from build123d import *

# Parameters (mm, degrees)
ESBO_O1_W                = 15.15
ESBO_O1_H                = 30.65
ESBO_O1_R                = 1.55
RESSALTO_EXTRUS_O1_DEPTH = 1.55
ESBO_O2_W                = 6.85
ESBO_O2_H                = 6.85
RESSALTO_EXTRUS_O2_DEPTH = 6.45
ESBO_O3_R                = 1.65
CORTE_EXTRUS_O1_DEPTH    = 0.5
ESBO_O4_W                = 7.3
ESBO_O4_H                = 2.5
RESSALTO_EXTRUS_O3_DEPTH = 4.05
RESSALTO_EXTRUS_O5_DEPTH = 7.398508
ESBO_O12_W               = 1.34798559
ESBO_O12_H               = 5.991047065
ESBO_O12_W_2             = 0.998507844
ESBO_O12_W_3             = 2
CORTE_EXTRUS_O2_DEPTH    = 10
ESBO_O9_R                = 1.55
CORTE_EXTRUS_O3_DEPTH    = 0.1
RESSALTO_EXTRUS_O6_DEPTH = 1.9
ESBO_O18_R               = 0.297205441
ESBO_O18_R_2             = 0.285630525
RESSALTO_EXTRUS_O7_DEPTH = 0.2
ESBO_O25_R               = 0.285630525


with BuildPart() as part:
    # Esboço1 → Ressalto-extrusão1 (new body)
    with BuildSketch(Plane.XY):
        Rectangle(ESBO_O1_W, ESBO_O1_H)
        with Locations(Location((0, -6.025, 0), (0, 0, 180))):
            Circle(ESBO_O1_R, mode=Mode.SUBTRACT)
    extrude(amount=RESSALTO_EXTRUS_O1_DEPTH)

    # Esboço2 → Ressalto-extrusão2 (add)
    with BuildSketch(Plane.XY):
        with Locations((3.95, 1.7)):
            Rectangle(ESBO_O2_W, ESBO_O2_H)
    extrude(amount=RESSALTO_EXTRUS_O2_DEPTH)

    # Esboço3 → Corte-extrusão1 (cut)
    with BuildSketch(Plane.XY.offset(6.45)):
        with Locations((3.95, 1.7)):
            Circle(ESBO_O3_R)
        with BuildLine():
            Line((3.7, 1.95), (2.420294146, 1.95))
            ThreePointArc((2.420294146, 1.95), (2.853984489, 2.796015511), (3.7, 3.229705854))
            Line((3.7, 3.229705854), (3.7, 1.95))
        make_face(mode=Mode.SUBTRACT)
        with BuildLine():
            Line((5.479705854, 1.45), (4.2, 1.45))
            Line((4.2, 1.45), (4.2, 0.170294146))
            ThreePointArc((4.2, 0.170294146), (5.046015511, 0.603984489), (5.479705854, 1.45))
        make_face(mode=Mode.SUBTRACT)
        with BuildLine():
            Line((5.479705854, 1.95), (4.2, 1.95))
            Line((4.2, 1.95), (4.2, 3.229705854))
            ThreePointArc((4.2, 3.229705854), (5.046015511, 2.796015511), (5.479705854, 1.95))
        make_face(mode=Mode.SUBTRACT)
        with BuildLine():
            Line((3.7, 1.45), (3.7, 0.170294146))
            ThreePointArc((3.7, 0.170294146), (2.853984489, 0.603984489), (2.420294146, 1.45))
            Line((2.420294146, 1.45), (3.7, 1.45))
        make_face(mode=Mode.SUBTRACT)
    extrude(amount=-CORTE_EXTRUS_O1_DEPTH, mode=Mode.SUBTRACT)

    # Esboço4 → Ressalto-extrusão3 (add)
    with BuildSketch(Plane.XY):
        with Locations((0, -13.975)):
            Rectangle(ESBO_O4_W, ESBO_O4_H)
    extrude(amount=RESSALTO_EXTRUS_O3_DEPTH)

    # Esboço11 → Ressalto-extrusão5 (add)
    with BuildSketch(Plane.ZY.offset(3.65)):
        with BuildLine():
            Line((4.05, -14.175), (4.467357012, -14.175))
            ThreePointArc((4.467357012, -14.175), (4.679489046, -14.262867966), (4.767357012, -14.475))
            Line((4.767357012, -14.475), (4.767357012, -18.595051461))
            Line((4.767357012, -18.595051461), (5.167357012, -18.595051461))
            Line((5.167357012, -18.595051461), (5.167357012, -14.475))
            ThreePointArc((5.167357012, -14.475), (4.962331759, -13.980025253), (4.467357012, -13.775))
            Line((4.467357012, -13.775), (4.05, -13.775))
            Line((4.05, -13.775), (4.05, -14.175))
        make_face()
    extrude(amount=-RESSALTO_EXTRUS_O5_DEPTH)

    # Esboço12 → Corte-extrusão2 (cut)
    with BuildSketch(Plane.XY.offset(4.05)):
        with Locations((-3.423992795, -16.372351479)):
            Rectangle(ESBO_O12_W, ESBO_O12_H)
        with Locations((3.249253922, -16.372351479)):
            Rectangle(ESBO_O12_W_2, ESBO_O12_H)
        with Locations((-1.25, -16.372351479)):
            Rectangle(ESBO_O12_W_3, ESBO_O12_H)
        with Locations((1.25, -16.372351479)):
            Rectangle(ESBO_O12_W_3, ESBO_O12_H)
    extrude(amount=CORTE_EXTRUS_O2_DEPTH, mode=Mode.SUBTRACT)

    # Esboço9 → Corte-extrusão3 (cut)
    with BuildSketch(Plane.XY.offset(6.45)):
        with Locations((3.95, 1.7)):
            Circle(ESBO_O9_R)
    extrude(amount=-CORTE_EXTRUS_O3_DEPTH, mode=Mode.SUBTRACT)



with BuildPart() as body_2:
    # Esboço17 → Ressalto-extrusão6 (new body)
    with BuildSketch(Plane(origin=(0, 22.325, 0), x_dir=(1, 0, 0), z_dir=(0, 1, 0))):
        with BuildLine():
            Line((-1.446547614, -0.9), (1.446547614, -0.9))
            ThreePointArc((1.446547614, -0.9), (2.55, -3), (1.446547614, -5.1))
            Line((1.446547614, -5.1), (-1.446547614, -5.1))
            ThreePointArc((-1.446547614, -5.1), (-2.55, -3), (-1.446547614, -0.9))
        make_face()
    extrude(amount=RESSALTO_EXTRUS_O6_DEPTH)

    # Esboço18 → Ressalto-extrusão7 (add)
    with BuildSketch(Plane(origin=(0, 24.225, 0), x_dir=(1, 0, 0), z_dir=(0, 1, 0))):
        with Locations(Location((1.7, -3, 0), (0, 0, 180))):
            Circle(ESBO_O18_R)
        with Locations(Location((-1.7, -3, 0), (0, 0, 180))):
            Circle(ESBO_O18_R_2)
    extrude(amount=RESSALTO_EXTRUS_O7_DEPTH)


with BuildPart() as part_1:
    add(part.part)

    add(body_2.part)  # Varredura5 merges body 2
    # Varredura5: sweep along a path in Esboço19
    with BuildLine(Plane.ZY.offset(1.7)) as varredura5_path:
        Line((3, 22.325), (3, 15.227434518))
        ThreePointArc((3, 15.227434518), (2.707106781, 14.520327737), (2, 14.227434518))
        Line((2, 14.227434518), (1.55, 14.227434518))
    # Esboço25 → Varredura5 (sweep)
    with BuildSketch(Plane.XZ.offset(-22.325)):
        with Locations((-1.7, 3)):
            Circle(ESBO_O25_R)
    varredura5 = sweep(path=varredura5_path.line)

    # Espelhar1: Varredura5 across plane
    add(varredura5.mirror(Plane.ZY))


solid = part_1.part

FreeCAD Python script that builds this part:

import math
import FreeCAD as App
import Part
import Sketcher
from FreeCAD import Vector


def add_polygon(sketch, points):
    """Adds a closed chain of lines whose ends are joined by coincident constraints."""
    first, n = sketch.GeometryCount, len(points)
    for a, b in zip(points, points[1:] + points[:1]):
        sketch.addGeometry(Part.LineSegment(App.Vector(*a, 0), App.Vector(*b, 0)), False)
    for i in range(n):
        sketch.addConstraint(Sketcher.Constraint("Coincident", first + i, 2, first + (i + 1) % n, 1))

doc = App.newDocument("Part")
body = doc.addObject("PartDesign::Body", "Body")

sketch1 = body.newObject("Sketcher::SketchObject", "Sketch")
sketch1.AttachmentSupport = (doc.getObject("XY_Plane"), [""])
sketch1.MapMode = "FlatFace"
add_polygon(sketch1, [(-7.6, 15.3), (-7.6, -15.3), (7.6, -15.3), (7.6, 15.3)])
sketch1.addGeometry(Part.Circle(Vector(0, -6, 0), Vector(0, 0, 1), 1.6), False)
sketch1.addConstraint([
    Sketcher.Constraint("Vertical", 0),
    Sketcher.Constraint("Horizontal", 1),
    Sketcher.Constraint("Vertical", 2),
    Sketcher.Constraint("Horizontal", 3),
    Sketcher.Constraint("Symmetric", 0, 2, 2, 2, -1, 1),
    Sketcher.Constraint("PointOnObject", 4, 3, -2),
    Sketcher.Constraint("Diameter", 4, 3.1),
    Sketcher.Constraint("DistanceX", 1, 1, 1, 2, 15.15),
    Sketcher.Constraint("DistanceY", 0, 2, 0, 1, 30.65),
    Sketcher.Constraint("DistanceY", 0, 2, 4, 3, 9.3),
])
pad1 = body.newObject("PartDesign::Pad", "Pad")
pad1.Profile = sketch1
pad1.Length = 1.55

sketch2 = body.newObject("Sketcher::SketchObject", "Sketch001")
sketch2.AttachmentSupport = (doc.getObject("XY_Plane"), [""])
sketch2.MapMode = "FlatFace"
add_polygon(sketch2, [(1, 5), (1, -2), (7, -2), (7, 5)])
sketch2.addConstraint([
    Sketcher.Constraint("Vertical", 0),
    Sketcher.Constraint("Horizontal", 1),
    Sketcher.Constraint("Vertical", 2),
    Sketcher.Constraint("Horizontal", 3),
    Sketcher.Constraint("Equal", 3, 0),
    Sketcher.Constraint("DistanceX", 1, 1, 1, 2, 6.85),
    Sketcher.Constraint("DistanceX", -1, 1, 0, 2, 0.525),
    Sketcher.Constraint("DistanceY", 0, 2, -1, 1, 1.725),
])
pad2 = body.newObject("PartDesign::Pad", "Pad001")
pad2.Profile = sketch2
pad2.Length = 6.45

sketch3 = body.newObject("Sketcher::SketchObject", "Sketch002")
sketch3.AttachmentSupport = (doc.getObject("XY_Plane"), [""])
sketch3.MapMode = "FlatFace"
sketch3.AttachmentOffset = App.Placement(Vector(0, 0, 6.45), App.Rotation())
sketch3.addGeometry([
    Part.Circle(Vector(4, 1.7, 0), Vector(0, 0, 1), 1.6),
    Part.LineSegment(Vector(2.4, 1.4, 0), Vector(3.7, 1.4, 0)),
    Part.LineSegment(Vector(3.7, 1.4, 0), Vector(3.7, 0.2, 0)),
    Part.ArcOfCircle(Part.Circle(Vector(3.9, 1.7, 0), Vector(0, 0, 1), 1.5), math.radians(-171), math.radians(-99)),
    Part.LineSegment(Vector(4.2, 1.4, 0), Vector(5.5, 1.4, 0)),
    Part.ArcOfCircle(Part.Circle(Vector(4, 1.7, 0), Vector(0, 0, 1), 1.5), math.radians(-81), math.radians(-9)),
    Part.LineSegment(Vector(4.2, 0.2, 0), Vector(4.2, 1.4, 0)),
    Part.LineSegment(Vector(3.7, 3.2, 0), Vector(3.7, 1.9, 0)),
    Part.LineSegment(Vector(3.7, 1.9, 0), Vector(2.4, 1.9, 0)),
    Part.ArcOfCircle(Part.Circle(Vector(3.9, 1.7, 0), Vector(0, 0, 1), 1.5), math.radians(99), math.radians(171)),
    Part.ArcOfCircle(Part.Circle(Vector(4, 1.7, 0), Vector(0, 0, 1), 1.5), math.radians(9), math.radians(81)),
    Part.LineSegment(Vector(5.5, 1.9, 0), Vector(4.2, 1.9, 0)),
    Part.LineSegment(Vector(4.2, 1.9, 0), Vector(4.2, 3.2, 0)),
], False)
sketch3.addConstraint([
    Sketcher.Constraint("Coincident", 1, 2, 2, 1),
    Sketcher.Constraint("Coincident", 2, 2, 3, 2),
    Sketcher.Constraint("Coincident", 3, 1, 1, 1),
    Sketcher.Constraint("Coincident", 4, 2, 5, 2),
    Sketcher.Constraint("Coincident", 5, 1, 6, 1),
    Sketcher.Constraint("Coincident", 6, 2, 4, 1),
    Sketcher.Constraint("Coincident", 7, 2, 8, 1),
    Sketcher.Constraint("Coincident", 8, 2, 9, 2),
    Sketcher.Constraint("Coincident", 9, 1, 7, 1),
    Sketcher.Constraint("Coincident", 10, 1, 11, 1),
    Sketcher.Constraint("Coincident", 11, 2, 12, 1),
    Sketcher.Constraint("Coincident", 12, 2, 10, 2),
    Sketcher.Constraint("Horizontal", 1),
    Sketcher.Constraint("Vertical", 2),
    Sketcher.Constraint("Horizontal", 4),
    Sketcher.Constraint("Vertical", 6),
    Sketcher.Constraint("Vertical", 7),
    Sketcher.Constraint("Horizontal", 8),
    Sketcher.Constraint("Horizontal", 11),
    Sketcher.Constraint("Vertical", 12),
    Sketcher.Constraint("Coincident", 3, 3, 0, 3),
    Sketcher.Constraint("Coincident", 5, 3, 0, 3),
    Sketcher.Constraint("Coincident", 9, 3, 0, 3),
    Sketcher.Constraint("Coincident", 10, 3, 0, 3),
    Sketcher.Constraint("Equal", 3, 5),
    Sketcher.Constraint("Equal", 5, 9),
    Sketcher.Constraint("Equal", 9, 10),
    Sketcher.Constraint("Horizontal", 3, 1, 4, 2),
    Sketcher.Constraint("Horizontal", 2, 2, 5, 1),
    Sketcher.Constraint("Horizontal", 8, 2, 10, 1),
    Sketcher.Constraint("Horizontal", 9, 1, 12, 2),
    Sketcher.Constraint("Vertical", 2, 2, 7, 2),
    Sketcher.Constraint("Vertical", 3, 1, 8, 2),
    Sketcher.Constraint("Equal", 11, 2),
    Sketcher.Constraint("Diameter", 0, 3.3),
    Sketcher.Constraint("Radius", 3, 1.55),
    Sketcher.Constraint("DistanceY", -1, 1, 0, 3, 1.7),
    Sketcher.Constraint("DistanceX", -1, 1, 1, 2, 3.7),
    Sketcher.Constraint("DistanceX", -1, 1, 5, 1, 4.2),
])
pocket1 = body.newObject("PartDesign::Pocket", "Pocket")
pocket1.Profile = sketch3
pocket1.Length = 0.5

sketch4 = body.newObject("Sketcher::SketchObject", "Sketch003")
sketch4.AttachmentSupport = (doc.getObject("XY_Plane"), [""])
sketch4.MapMode = "FlatFace"
add_polygon(sketch4, [(-3.6, -12.7), (-3.6, -15.2), (3.6, -15.2), (3.6, -12.7)])
sketch4.addConstraint([
    Sketcher.Constraint("Vertical", 0),
    Sketcher.Constraint("Horizontal", 1),
    Sketcher.Constraint("Vertical", 2),
    Sketcher.Constraint("Horizontal", 3),
    Sketcher.Constraint("DistanceX", 1, 1, 1, 2, 7.3),
    Sketcher.Constraint("DistanceY", 0, 2, 0, 1, 2.5),
    Sketcher.Constraint("DistanceX", 0, 2, -1, 1, 3.65),
    Sketcher.Constraint("DistanceY", 0, 2, -1, 1, 15.225),
])
pad3 = body.newObject("PartDesign::Pad", "Pad002")
pad3.Profile = sketch4
pad3.Length = 4.05

sketch5 = body.newObject("Sketcher::SketchObject", "Sketch004")
sketch5.AttachmentSupport = (doc.getObject("YZ_Plane"), [""])
sketch5.MapMode = "FlatFace"
sketch5.AttachmentOffset = App.Placement(Vector(0, 0, -3.65), App.Rotation())
sketch5.addGeometry([
    Part.LineSegment(Vector(-14.18, 4.05, 0), Vector(-14.18, 4.47, 0)),
    Part.ArcOfCircle(Part.Circle(Vector(-14.48, 4.47, 0), Vector(0, 0, 1), 0.3), math.radians(0), math.radians(90)),
    Part.LineSegment(Vector(-14.47, 4.77, 0), Vector(-18.6, 4.77, 0)),
    Part.LineSegment(Vector(-18.6, 4.77, 0), Vector(-18.6, 5.17, 0)),
    Part.LineSegment(Vector(-18.6, 5.17, 0), Vector(-14.47, 5.17, 0)),
    Part.ArcOfCircle(Part.Circle(Vector(-14.47, 4.47, 0), Vector(0, 0, 1), 0.7), math.radians(0), math.radians(90)),
    Part.LineSegment(Vector(-13.78, 4.47, 0), Vector(-13.78, 4.05, 0)),
    Part.LineSegment(Vector(-13.78, 4.05, 0), Vector(-14.18, 4.05, 0)),
], False)
sketch5.addConstraint([
    Sketcher.Constraint("Tangent", 0, 2, 1, 1),
    Sketcher.Constraint("Tangent", 1, 2, 2, 1),
    Sketcher.Constraint("Coincident", 2, 2, 3, 1),
    Sketcher.Constraint("Coincident", 3, 2, 4, 1),
    Sketcher.Constraint("Tangent", 4, 2, 5, 2),
    Sketcher.Constraint("Tangent", 5, 1, 6, 1),
    Sketcher.Constraint("Coincident", 6, 2, 7, 1),
    Sketcher.Constraint("Coincident", 7, 2, 0, 1),
    Sketcher.Constraint("Vertical", 0),
    Sketcher.Constraint("Horizontal", 2),
    Sketcher.Constraint("Vertical", 3),
    Sketcher.Constraint("Horizontal", 4),
    Sketcher.Constraint("Vertical", 6),
    Sketcher.Constraint("Horizontal", 7),
    Sketcher.Constraint("Coincident", 5, 3, 1, 3),
    Sketcher.Constraint("Radius", 1, 0.3),
    Sketcher.Constraint("Radius", 5, 0.7),
    Sketcher.Constraint("DistanceY", -1, 1, 6, 2, 4.05),
    Sketcher.Constraint("DistanceX", 1, 3, -1, 1, 14.475),
    Sketcher.Constraint("DistanceX", 2, 2, 2, 1, 4.120051),
    Sketcher.Constraint("DistanceY", 0, 1, 0, 2, 0.417357),
])
pad4 = body.newObject("PartDesign::Pad", "Pad003")
pad4.Profile = sketch5
pad4.Length = 7.398508

sketch6 = body.newObject("Sketcher::SketchObject", "Sketch005")
sketch6.AttachmentSupport = (doc.getObject("XY_Plane"), [""])
sketch6.MapMode = "FlatFace"
sketch6.AttachmentOffset = App.Placement(Vector(0, 0, 4.05), App.Rotation())
add_polygon(sketch6, [(-4.1, -13.4), (-4.1, -19.4), (-2.8, -19.4), (-2.8, -13.4)])
add_polygon(sketch6, [(2.8, -13.4), (2.8, -19.4), (3.7, -19.4), (3.7, -13.4)])
add_polygon(sketch6, [(-2.2, -13.4), (-2.2, -19.4), (-0.2, -19.4), (-0.2, -13.4)])
add_polygon(sketch6, [(0.2, -13.4), (0.2, -19.4), (2.2, -19.4), (2.2, -13.4)])
sketch6.addConstraint([
    Sketcher.Constraint("Vertical", 0),
    Sketcher.Constraint("Horizontal", 1),
    Sketcher.Constraint("Vertical", 2),
    Sketcher.Constraint("Horizontal", 3),
    Sketcher.Constraint("Vertical", 4),
    Sketcher.Constraint("Horizontal", 5),
    Sketcher.Constraint("Vertical", 6),
    Sketcher.Constraint("Horizontal", 7),
    Sketcher.Constraint("Vertical", 8),
    Sketcher.Constraint("Horizontal", 9),
    Sketcher.Constraint("Vertical", 10),
    Sketcher.Constraint("Horizontal", 11),
    Sketcher.Constraint("Vertical", 12),
    Sketcher.Constraint("Horizontal", 13),
    Sketcher.Constraint("Vertical", 14),
    Sketcher.Constraint("Horizontal", 15),
    Sketcher.Constraint("Symmetric", 1, 2, 4, 2, -2),
    Sketcher.Constraint("Symmetric", 9, 2, 12, 2, -2),
    Sketcher.Constraint("Symmetric", 11, 2, 14, 2, -2),
    Sketcher.Constraint("Horizontal", 3, 2, 6, 2),
    Sketcher.Constraint("Horizontal", 5, 2, 8, 2),
    Sketcher.Constraint("Horizontal", 7, 2, 10, 2),
    Sketcher.Constraint("DistanceX", 9, 1, 9, 2, 2.0),
    Sketcher.Constraint("DistanceX", 8, 2, 4, 2, 5.0),
    Sketcher.Constraint("DistanceX", 1, 2, 4, 2, 5.5),
    Sketcher.Constraint("DistanceX", 1, 1, 1, 2, 1.347986),
    Sketcher.Constraint("DistanceX", 5, 1, 5, 2, 0.998508),
    Sketcher.Constraint("DistanceY", 0, 2, 0, 1, 5.991047),
    Sketcher.Constraint("DistanceY", 0, 2, -1, 1, 19.367875),
])
pocket2 = body.newObject("PartDesign::Pocket", "Pocket001")
pocket2.Profile = sketch6
pocket2.Length = 10
pocket2.Reversed = True

sketch7 = body.newObject("Sketcher::SketchObject", "Sketch006")
sketch7.AttachmentSupport = (doc.getObject("XY_Plane"), [""])
sketch7.MapMode = "FlatFace"
sketch7.AttachmentOffset = App.Placement(Vector(0, 0, 6.45), App.Rotation())
sketch7.addGeometry(Part.Circle(Vector(4, 1.7, 0), Vector(0, 0, 1), 1.6), False)
sketch7.addConstraint([
    Sketcher.Constraint("Diameter", 0, 3.1),
    Sketcher.Constraint("DistanceY", -1, 1, 0, 3, 1.7),
    Sketcher.Constraint("DistanceX", -1, 1, 0, 3, 3.95),
])
pocket3 = body.newObject("PartDesign::Pocket", "Pocket002")
pocket3.Profile = sketch7
pocket3.Length = 0.1
body2 = doc.addObject("PartDesign::Body", "Body001")

sketch8 = body2.newObject("Sketcher::SketchObject", "Sketch007")
sketch8.AttachmentSupport = (doc.getObject("XZ_Plane001"), [""])
sketch8.MapMode = "FlatFace"
sketch8.AttachmentOffset = App.Placement(Vector(0, 0, -22.325), App.Rotation())
sketch8.addGeometry([
    Part.LineSegment(Vector(1.4, 0.9, 0), Vector(-1.4, 0.9, 0)),
    Part.ArcOfCircle(Part.Circle(Vector(0, 3, 0), Vector(0, 0, 1), 2.5), math.radians(125), math.radians(235)),
    Part.LineSegment(Vector(-1.4, 5.1, 0), Vector(1.4, 5.1, 0)),
    Part.ArcOfCircle(Part.Circle(Vector(0, 3, 0), Vector(0, 0, 1), 2.5), math.radians(-55), math.radians(55)),
], False)
sketch8.addConstraint([
    Sketcher.Constraint("Coincident", 0, 2, 1, 2),
    Sketcher.Constraint("Coincident", 1, 1, 2, 1),
    Sketcher.Constraint("Coincident", 2, 2, 3, 2),
    Sketcher.Constraint("Coincident", 3, 1, 0, 1),
    Sketcher.Constraint("Horizontal", 0),
    Sketcher.Constraint("Horizontal", 2),
    Sketcher.Constraint("Coincident", 3, 3, 1, 3),
    Sketcher.Constraint("Equal", 1, 3),
    Sketcher.Constraint("PointOnObject", 1, 3, -2),
    Sketcher.Constraint("Vertical", 0, 2, 1, 1),
    Sketcher.Constraint("Radius", 1, 2.55),
    Sketcher.Constraint("DistanceY", -1, 1, 1, 3, 3.0),
    Sketcher.Constraint("DistanceY", -1, 1, 0, 2, 0.9),
])
pad5 = body2.newObject("PartDesign::Pad", "Pad004")
pad5.Profile = sketch8
pad5.Length = 1.9
pad5.Reversed = True

sketch9 = body2.newObject("Sketcher::SketchObject", "Sketch008")
sketch9.AttachmentSupport = (doc.getObject("XZ_Plane001"), [""])
sketch9.MapMode = "FlatFace"
sketch9.AttachmentOffset = App.Placement(Vector(0, 0, -24.225), App.Rotation())
sketch9.addGeometry([
    Part.Circle(Vector(1.7, 3, 0), Vector(0, 0, 1), 0.3),
    Part.Circle(Vector(-1.7, 3, 0), Vector(0, 0, 1), 0.29),
], False)
sketch9.addConstraint([
    Sketcher.Constraint("Symmetric", 0, 3, 1, 3, -2),
    Sketcher.Constraint("DistanceY", -1, 1, 0, 3, 3.0),
    Sketcher.Constraint("DistanceX", -1, 1, 0, 3, 1.7),
    Sketcher.Constraint("Diameter", 0, 0.594411),
    Sketcher.Constraint("Diameter", 1, 0.571261),
])
pad6 = body2.newObject("PartDesign::Pad", "Pad005")
pad6.Profile = sketch9
pad6.Length = 0.2
pad6.Reversed = True
body.AllowCompound = True
doc.recompute()

boolean = body.newObject("PartDesign::Boolean", "Boolean")
boolean.Type = "Fuse"
boolean.addObjects([body2])

sketch10 = body.newObject("Sketcher::SketchObject", "Sketch009")
sketch10.AttachmentSupport = (doc.getObject("XZ_Plane"), [""])
sketch10.MapMode = "FlatFace"
sketch10.AttachmentOffset = App.Placement(Vector(0, 0, -22.325), App.Rotation())
sketch10.addGeometry(Part.Circle(Vector(-1.7, 3, 0), Vector(0, 0, 1), 0.29), False)
sketch10.addConstraint([
    Sketcher.Constraint("DistanceY", -1, 1, 0, 3, 3.0),
    Sketcher.Constraint("DistanceX", 0, 3, -1, 1, 1.7),
    Sketcher.Constraint("Diameter", 0, 0.571261),
])

sketch11 = body.newObject("Sketcher::SketchObject", "Sketch010")
sketch11.AttachmentSupport = (doc.getObject("YZ_Plane"), [""])
sketch11.MapMode = "FlatFace"
sketch11.AttachmentOffset = App.Placement(Vector(0, 0, -1.7), App.Rotation())
sketch11.addGeometry([
    Part.LineSegment(Vector(22.32, 3, 0), Vector(15.23, 3, 0)),
    Part.ArcOfCircle(Part.Circle(Vector(15.23, 2, 0), Vector(0, 0, 1), 1), math.radians(90), math.radians(180)),
    Part.LineSegment(Vector(14.23, 2, 0), Vector(14.23, 1.55, 0)),
], False)
sketch11.addConstraint([
    Sketcher.Constraint("Tangent", 0, 2, 1, 1),
    Sketcher.Constraint("Tangent", 1, 2, 2, 1),
    Sketcher.Constraint("Horizontal", 0),
    Sketcher.Constraint("Vertical", 2),
    Sketcher.Constraint("Radius", 1, 1.0),
    Sketcher.Constraint("DistanceY", -1, 1, 1, 3, 2.0),
    Sketcher.Constraint("DistanceY", 2, 2, 2, 1, 0.45),
    Sketcher.Constraint("DistanceX", -1, 1, 0, 1, 22.325),
    Sketcher.Constraint("DistanceX", 0, 2, 0, 1, 7.097565),
])
doc.recompute()

additivepipe = body.newObject("PartDesign::AdditivePipe", "AdditivePipe")
additivepipe.Profile = sketch10
additivepipe.Spine = (sketch11, ["Edge1", "Edge2", "Edge3"])
doc.recompute()

mirrored = body.newObject("PartDesign::Mirrored", "Mirrored")
mirrored.Originals = [additivepipe]
mirrored.MirrorPlane = (doc.getObject("YZ_Plane"), [""])
body.Tip = mirrored

doc.recompute()
